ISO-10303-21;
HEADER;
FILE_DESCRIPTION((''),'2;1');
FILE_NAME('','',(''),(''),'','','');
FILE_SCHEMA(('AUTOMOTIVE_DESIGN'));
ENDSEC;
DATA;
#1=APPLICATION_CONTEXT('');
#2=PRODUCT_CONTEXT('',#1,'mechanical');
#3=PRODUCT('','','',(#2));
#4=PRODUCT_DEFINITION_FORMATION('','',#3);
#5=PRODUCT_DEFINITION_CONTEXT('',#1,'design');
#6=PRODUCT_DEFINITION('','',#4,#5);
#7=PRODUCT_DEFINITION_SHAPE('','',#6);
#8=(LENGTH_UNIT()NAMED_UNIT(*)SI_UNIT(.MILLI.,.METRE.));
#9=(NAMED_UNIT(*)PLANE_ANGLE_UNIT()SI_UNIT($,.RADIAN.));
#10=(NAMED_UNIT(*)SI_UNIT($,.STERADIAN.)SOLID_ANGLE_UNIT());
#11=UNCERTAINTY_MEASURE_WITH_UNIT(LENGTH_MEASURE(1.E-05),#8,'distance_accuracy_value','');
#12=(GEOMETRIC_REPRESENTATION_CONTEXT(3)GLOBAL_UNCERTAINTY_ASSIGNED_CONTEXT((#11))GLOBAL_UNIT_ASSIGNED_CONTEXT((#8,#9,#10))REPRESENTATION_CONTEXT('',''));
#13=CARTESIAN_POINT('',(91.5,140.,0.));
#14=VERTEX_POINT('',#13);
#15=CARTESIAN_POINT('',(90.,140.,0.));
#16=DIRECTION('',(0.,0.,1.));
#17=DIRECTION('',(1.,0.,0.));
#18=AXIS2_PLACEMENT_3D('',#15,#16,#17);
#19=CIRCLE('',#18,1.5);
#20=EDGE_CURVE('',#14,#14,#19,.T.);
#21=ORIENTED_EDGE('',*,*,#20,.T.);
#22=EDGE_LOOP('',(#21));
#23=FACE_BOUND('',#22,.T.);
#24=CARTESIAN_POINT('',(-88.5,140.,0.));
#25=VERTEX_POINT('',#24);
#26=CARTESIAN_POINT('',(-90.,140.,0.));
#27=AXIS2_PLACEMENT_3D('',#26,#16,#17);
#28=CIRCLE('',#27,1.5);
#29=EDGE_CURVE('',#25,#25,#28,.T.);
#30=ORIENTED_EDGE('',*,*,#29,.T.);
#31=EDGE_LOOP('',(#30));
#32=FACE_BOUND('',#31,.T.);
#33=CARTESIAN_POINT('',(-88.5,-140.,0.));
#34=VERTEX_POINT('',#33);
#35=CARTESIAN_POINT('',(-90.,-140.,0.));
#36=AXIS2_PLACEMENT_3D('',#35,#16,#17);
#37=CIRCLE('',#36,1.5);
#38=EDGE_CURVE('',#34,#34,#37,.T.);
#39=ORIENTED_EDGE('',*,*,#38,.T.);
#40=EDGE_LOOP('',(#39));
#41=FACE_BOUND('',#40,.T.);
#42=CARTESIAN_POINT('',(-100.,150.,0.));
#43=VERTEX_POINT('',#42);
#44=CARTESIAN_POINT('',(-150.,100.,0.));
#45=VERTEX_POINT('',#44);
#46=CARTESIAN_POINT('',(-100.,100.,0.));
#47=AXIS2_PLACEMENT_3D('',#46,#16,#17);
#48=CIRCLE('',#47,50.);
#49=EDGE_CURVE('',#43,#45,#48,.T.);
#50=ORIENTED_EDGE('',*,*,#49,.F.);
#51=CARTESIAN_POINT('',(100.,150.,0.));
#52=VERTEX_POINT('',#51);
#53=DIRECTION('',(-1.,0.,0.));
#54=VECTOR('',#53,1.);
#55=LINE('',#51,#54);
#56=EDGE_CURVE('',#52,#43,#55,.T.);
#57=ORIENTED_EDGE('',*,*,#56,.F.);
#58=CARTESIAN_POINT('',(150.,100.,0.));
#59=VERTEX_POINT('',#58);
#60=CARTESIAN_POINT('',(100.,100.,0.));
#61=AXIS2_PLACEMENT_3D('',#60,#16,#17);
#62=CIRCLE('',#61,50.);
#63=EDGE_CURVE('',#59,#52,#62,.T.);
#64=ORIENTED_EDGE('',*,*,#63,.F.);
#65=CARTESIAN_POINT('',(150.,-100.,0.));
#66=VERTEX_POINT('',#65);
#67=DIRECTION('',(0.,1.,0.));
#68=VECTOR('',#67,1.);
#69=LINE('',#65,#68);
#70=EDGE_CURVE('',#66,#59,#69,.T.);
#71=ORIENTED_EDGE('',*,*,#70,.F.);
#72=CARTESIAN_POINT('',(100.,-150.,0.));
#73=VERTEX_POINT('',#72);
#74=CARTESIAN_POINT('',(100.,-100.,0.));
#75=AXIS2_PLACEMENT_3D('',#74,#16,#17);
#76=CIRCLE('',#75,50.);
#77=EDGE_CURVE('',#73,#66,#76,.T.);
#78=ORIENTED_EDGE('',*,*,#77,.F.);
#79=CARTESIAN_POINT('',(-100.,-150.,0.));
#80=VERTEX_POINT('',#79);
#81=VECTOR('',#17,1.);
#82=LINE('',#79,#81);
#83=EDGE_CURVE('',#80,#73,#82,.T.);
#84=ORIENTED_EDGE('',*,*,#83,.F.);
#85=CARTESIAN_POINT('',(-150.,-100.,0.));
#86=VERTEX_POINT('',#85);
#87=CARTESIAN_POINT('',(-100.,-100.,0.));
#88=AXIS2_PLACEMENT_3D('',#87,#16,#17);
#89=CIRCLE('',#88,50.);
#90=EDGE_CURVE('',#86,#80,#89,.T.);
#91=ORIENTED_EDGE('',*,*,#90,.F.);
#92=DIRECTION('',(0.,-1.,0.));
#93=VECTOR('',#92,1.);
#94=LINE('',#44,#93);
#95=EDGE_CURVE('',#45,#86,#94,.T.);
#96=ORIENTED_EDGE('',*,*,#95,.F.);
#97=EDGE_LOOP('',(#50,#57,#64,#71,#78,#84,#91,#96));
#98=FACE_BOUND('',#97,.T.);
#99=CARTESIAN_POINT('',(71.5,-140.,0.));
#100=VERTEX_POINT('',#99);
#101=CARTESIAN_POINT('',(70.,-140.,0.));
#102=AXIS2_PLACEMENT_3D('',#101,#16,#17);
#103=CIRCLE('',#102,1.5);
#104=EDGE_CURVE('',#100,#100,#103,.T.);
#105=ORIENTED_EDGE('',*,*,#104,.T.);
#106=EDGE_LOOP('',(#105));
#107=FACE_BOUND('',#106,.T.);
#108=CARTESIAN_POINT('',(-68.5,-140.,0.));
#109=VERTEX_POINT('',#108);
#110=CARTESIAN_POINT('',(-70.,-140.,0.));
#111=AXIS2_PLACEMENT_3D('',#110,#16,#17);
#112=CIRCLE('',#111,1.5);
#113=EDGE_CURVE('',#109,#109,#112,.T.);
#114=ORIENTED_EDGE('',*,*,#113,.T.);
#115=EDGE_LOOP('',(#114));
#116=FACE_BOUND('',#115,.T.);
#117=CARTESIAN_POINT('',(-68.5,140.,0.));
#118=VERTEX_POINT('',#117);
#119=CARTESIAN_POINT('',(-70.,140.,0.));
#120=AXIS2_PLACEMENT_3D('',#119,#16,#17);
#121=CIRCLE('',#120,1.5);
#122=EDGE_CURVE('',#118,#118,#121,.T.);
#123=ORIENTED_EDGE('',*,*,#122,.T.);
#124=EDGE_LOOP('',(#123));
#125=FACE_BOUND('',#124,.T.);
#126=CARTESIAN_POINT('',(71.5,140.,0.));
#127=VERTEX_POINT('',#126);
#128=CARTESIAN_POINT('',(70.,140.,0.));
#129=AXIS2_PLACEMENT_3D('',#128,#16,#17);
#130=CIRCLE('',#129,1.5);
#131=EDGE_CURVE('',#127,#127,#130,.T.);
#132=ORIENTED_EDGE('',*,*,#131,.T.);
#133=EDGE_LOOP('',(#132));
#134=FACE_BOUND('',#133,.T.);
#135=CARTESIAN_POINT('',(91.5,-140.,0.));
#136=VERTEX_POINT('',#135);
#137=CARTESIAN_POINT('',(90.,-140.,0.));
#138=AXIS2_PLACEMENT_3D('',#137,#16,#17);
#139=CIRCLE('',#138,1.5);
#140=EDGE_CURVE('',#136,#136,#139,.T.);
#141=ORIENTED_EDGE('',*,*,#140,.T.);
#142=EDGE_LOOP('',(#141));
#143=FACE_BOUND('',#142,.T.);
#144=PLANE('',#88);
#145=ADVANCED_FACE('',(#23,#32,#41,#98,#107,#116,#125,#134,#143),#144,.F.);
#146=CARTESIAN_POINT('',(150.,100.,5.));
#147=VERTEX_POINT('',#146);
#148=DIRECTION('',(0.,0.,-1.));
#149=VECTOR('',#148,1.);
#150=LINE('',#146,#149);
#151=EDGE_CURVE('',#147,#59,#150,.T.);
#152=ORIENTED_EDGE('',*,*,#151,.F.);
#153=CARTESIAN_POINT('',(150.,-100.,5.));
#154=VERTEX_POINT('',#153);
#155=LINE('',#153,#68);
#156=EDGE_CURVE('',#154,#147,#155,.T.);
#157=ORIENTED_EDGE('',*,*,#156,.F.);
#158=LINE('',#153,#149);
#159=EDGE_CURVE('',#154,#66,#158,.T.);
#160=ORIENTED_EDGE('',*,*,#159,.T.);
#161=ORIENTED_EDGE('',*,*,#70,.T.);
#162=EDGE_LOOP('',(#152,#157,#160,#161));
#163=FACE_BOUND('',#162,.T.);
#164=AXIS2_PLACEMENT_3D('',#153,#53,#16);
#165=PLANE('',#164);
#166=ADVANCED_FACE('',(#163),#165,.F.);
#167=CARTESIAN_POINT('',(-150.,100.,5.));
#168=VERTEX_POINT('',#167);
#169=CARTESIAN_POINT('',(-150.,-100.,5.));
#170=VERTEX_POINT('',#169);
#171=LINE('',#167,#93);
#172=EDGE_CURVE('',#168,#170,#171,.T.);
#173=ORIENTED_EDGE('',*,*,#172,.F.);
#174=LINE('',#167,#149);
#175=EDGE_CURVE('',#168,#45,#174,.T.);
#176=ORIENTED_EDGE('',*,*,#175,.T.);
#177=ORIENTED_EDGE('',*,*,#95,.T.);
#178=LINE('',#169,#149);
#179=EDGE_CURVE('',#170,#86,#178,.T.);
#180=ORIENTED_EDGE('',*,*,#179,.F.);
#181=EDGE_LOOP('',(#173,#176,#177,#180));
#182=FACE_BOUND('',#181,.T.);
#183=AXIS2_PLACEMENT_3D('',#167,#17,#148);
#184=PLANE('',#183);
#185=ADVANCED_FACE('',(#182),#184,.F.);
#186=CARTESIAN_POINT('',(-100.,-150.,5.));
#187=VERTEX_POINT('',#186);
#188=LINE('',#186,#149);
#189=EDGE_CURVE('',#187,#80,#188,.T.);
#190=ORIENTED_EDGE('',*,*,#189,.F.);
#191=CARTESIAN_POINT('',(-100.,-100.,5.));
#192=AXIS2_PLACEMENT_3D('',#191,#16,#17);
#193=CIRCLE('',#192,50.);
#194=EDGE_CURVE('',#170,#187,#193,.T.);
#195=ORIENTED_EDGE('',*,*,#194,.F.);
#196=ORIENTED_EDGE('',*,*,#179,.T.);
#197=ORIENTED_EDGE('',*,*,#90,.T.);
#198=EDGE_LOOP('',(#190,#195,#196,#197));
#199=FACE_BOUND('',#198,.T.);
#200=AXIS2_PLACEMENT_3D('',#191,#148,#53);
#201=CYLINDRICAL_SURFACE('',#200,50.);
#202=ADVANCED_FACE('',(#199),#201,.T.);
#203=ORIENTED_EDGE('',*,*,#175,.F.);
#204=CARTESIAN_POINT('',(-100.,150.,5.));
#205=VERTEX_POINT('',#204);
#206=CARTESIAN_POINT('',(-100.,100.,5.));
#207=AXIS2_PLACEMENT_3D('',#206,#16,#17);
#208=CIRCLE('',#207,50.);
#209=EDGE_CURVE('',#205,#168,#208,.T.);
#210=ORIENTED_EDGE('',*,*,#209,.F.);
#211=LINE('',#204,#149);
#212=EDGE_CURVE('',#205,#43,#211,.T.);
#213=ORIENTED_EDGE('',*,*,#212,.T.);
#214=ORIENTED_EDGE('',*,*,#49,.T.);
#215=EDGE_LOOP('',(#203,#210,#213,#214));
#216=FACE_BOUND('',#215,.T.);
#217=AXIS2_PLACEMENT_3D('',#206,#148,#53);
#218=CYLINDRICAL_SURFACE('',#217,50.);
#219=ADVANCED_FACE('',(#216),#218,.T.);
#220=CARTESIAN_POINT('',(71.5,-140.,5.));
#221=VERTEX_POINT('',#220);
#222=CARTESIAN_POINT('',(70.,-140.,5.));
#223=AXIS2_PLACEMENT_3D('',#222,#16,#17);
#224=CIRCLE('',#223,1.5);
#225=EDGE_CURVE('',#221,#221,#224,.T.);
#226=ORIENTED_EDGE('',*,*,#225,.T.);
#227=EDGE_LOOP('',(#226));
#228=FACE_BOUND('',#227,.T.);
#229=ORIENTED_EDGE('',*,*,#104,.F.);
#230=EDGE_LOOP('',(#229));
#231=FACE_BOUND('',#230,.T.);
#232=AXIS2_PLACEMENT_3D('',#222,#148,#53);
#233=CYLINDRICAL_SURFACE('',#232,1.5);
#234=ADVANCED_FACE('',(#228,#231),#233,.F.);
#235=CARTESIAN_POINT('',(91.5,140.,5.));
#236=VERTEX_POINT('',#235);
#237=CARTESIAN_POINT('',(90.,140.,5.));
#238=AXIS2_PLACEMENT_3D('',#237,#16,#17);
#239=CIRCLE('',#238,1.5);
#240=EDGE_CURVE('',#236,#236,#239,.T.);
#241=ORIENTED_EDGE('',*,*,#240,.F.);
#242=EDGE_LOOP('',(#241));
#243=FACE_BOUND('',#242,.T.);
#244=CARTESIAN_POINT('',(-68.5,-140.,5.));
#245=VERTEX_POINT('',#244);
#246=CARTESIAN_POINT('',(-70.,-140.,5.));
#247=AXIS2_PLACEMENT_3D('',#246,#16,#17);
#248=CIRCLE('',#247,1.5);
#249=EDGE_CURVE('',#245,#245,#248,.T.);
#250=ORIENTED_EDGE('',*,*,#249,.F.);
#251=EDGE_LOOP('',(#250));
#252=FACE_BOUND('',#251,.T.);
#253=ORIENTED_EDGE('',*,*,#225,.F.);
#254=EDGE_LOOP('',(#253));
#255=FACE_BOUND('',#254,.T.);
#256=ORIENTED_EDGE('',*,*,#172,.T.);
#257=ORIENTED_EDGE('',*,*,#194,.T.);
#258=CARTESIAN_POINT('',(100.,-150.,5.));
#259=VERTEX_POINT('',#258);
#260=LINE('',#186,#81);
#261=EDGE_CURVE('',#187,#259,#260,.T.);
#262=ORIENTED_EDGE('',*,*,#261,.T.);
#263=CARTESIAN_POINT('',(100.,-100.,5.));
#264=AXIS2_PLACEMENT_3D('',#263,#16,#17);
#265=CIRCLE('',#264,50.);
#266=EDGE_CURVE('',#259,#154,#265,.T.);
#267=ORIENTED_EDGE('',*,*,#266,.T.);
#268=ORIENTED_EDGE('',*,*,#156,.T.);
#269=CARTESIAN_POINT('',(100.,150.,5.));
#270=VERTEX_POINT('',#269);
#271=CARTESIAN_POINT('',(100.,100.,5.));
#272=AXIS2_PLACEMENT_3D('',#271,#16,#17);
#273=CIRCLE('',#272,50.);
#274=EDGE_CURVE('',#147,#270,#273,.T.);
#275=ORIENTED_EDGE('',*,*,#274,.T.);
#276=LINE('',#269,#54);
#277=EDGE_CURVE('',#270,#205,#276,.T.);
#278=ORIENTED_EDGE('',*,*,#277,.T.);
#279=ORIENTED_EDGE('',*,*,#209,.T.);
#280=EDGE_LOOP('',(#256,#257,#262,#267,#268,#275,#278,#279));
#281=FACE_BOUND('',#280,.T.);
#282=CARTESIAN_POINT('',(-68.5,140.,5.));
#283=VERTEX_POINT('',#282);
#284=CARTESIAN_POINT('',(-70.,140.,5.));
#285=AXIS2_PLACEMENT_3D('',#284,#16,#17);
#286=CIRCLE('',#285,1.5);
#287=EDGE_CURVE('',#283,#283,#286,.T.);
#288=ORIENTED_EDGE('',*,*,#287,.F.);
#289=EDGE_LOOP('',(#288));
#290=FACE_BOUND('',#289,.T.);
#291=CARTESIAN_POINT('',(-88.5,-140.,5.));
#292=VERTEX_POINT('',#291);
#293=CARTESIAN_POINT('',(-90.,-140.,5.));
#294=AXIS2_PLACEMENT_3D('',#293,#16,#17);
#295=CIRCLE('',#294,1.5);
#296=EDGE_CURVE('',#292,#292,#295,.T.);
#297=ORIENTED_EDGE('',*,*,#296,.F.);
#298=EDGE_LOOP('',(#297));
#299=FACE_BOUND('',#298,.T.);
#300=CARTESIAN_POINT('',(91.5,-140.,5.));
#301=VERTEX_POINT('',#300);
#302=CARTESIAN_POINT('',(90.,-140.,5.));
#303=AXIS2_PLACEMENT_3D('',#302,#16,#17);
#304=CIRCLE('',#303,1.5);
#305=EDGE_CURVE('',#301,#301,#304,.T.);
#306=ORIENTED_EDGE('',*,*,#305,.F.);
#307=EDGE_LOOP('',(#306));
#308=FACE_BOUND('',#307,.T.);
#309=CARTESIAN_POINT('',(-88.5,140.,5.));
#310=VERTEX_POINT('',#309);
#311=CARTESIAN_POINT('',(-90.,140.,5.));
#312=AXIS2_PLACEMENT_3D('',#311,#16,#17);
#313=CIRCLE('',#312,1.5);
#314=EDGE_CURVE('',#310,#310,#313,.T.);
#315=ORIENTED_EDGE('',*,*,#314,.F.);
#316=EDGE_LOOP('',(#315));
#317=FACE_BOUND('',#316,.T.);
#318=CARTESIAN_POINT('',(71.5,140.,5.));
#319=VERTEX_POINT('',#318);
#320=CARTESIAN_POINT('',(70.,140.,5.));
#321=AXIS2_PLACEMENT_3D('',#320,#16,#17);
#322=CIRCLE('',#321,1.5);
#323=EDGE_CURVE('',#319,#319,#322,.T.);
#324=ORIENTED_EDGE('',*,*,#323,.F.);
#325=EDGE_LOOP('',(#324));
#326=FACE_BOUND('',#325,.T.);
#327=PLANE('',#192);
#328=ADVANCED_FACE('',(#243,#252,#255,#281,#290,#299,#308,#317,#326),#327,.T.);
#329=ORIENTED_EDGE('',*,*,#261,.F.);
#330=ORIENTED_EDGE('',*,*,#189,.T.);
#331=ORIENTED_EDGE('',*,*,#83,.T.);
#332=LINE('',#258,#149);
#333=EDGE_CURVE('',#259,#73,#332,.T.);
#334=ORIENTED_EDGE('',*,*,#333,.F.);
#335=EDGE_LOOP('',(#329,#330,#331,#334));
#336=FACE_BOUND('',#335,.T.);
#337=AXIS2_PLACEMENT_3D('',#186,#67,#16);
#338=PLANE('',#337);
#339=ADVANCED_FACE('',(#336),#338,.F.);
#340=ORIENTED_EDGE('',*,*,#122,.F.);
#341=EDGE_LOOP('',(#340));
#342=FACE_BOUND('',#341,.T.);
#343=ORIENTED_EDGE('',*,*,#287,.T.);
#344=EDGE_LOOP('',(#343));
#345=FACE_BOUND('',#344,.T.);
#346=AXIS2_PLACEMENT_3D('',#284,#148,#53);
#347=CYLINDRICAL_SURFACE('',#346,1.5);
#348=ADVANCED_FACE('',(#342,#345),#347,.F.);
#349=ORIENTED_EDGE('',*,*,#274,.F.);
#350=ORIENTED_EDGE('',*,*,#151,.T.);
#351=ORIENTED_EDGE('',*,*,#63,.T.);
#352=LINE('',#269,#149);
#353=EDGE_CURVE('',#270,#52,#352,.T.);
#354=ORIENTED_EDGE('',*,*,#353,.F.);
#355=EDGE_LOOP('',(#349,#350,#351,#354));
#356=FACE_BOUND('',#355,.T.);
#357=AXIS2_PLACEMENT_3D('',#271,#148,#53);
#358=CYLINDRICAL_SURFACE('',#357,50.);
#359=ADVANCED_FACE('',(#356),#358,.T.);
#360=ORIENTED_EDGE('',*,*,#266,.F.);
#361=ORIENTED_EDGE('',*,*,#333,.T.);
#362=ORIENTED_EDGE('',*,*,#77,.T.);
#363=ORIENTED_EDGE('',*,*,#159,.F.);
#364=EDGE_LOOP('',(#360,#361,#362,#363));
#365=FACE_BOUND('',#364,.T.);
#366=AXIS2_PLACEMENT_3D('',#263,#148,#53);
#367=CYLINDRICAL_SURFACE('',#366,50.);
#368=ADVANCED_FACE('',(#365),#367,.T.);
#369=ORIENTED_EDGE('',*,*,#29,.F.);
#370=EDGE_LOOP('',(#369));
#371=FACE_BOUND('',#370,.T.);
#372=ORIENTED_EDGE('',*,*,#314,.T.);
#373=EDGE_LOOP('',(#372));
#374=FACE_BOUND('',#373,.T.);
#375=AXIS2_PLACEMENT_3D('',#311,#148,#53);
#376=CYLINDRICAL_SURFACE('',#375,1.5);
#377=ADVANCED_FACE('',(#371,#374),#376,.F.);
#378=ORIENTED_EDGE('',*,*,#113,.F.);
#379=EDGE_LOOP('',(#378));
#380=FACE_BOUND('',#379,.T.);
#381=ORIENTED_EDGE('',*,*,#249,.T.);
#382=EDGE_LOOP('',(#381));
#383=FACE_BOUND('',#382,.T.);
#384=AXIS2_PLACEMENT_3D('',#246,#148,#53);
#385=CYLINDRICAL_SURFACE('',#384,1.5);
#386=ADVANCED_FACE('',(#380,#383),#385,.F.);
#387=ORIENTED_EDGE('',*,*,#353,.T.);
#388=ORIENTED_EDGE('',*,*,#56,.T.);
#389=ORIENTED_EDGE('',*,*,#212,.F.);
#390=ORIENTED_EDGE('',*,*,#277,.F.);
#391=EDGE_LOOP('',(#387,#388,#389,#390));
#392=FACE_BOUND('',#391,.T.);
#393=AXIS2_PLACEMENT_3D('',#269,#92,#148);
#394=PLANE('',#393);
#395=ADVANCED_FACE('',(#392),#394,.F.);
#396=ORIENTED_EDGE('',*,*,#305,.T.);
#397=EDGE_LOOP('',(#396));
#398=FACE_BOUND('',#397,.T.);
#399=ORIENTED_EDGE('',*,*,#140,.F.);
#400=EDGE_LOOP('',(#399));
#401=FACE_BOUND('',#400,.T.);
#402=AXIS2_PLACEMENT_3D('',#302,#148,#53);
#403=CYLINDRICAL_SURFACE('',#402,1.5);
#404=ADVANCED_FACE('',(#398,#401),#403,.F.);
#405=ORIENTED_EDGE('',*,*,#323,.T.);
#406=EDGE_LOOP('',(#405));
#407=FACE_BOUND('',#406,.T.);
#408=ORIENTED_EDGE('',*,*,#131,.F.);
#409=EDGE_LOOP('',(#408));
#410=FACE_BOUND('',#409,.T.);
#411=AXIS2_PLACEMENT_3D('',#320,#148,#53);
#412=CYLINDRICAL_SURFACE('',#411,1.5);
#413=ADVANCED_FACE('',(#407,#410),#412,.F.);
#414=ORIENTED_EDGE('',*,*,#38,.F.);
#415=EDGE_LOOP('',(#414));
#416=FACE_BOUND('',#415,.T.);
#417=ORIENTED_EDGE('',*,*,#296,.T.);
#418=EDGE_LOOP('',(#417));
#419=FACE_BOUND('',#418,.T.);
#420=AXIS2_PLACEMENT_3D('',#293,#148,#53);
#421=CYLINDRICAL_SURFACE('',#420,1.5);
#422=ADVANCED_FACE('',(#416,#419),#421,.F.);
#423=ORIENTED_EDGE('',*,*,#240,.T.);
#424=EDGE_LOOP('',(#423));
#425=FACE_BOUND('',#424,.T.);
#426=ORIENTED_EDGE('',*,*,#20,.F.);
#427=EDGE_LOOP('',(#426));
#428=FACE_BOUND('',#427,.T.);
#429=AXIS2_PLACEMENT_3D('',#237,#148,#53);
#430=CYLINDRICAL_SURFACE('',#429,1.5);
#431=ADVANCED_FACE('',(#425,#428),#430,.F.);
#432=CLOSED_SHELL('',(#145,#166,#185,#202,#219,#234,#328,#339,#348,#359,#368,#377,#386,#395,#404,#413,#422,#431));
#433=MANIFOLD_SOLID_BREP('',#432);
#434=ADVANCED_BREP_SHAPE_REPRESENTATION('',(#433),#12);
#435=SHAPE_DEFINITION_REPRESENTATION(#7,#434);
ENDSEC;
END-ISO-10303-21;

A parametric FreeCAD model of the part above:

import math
import FreeCAD as App
import Part
import Sketcher

V = App.Vector

doc = App.newDocument("Part")
params = doc.addObject("Spreadsheet::Sheet", "Params")
for row, (alias, value) in enumerate([
    ("sketch1_diameter", "3 mm"),
    ("sketch1_radius", "50 mm"),
    ("sketch1_width", "200 mm"),
    ("pad1_length", "5 mm"),
], start=1):
    params.set(f"A{row}", alias)
    params.set(f"B{row}", "=" + value)
    params.setAlias(f"B{row}", alias)

body = doc.addObject("PartDesign::Body", "Body")

sketch1 = doc.addObject("Sketcher::SketchObject", "Sketch")
body.addObject(sketch1)
sketch1.AttachmentSupport = (doc.XY_Plane, [""])
sketch1.MapMode = "FlatFace"
sketch1.addGeometry(Part.LineSegment(V(-100, -150, 0), V(100, -150, 0)), False)
sketch1.addGeometry(Part.ArcOfCircle(Part.Circle(V(100, -100, 0), V(0, 0, 1), 50), math.radians(-90), math.radians(0)), False)
sketch1.addGeometry(Part.LineSegment(V(150, -100, 0), V(150, 100, 0)), False)
sketch1.addGeometry(Part.ArcOfCircle(Part.Circle(V(100, 100, 0), V(0, 0, 1), 50), math.radians(0), math.radians(90)), False)
sketch1.addGeometry(Part.LineSegment(V(100, 150, 0), V(-100, 150, 0)), False)
sketch1.addGeometry(Part.ArcOfCircle(Part.Circle(V(-100, 100, 0), V(0, 0, 1), 50), math.radians(90), math.radians(180)), False)
sketch1.addGeometry(Part.LineSegment(V(-150, 100, 0), V(-150, -100, 0)), False)
sketch1.addGeometry(Part.ArcOfCircle(Part.Circle(V(-100, -100, 0), V(0, 0, 1), 50), math.radians(-180), math.radians(-90)), False)
sketch1.addGeometry(Part.Circle(V(-90, -140, 0), V(0, 0, 1), 1.5), False)
sketch1.addGeometry(Part.Circle(V(-70, -140, 0), V(0, 0, 1), 1.5), False)
sketch1.addGeometry(Part.Circle(V(70, -140, 0), V(0, 0, 1), 1.5), False)
sketch1.addGeometry(Part.Circle(V(90, -140, 0), V(0, 0, 1), 1.5), False)
sketch1.addGeometry(Part.Circle(V(-90, 140, 0), V(0, 0, 1), 1.5), False)
sketch1.addGeometry(Part.Circle(V(-70, 140, 0), V(0, 0, 1), 1.5), False)
sketch1.addGeometry(Part.Circle(V(70, 140, 0), V(0, 0, 1), 1.5), False)
sketch1.addGeometry(Part.Circle(V(90, 140, 0), V(0, 0, 1), 1.5), False)
sketch1.addConstraint(Sketcher.Constraint("Tangent", 0, 2, 1, 1))
sketch1.addConstraint(Sketcher.Constraint("Tangent", 1, 2, 2, 1))
sketch1.addConstraint(Sketcher.Constraint("Tangent", 2, 2, 3, 1))
sketch1.addConstraint(Sketcher.Constraint("Tangent", 3, 2, 4, 1))
sketch1.addConstraint(Sketcher.Constraint("Tangent", 4, 2, 5, 1))
sketch1.addConstraint(Sketcher.Constraint("Tangent", 5, 2, 6, 1))
sketch1.addConstraint(Sketcher.Constraint("Tangent", 6, 2, 7, 1))
sketch1.addConstraint(Sketcher.Constraint("Tangent", 7, 2, 0, 1))
sketch1.addConstraint(Sketcher.Constraint("Horizontal", 0))
sketch1.addConstraint(Sketcher.Constraint("Vertical", 2))
sketch1.addConstraint(Sketcher.Constraint("Horizontal", 4))
sketch1.addConstraint(Sketcher.Constraint("Vertical", 6))
sketch1.addConstraint(Sketcher.Constraint("Equal", 1, 3))
sketch1.addConstraint(Sketcher.Constraint("Equal", 3, 5))
sketch1.addConstraint(Sketcher.Constraint("Equal", 5, 7))
sketch1.addConstraint(Sketcher.Constraint("Equal", 8, 9))
sketch1.addConstraint(Sketcher.Constraint("Equal", 9, 10))
sketch1.addConstraint(Sketcher.Constraint("Equal", 10, 11))
sketch1.addConstraint(Sketcher.Constraint("Equal", 11, 12))
sketch1.addConstraint(Sketcher.Constraint("Equal", 12, 13))
sketch1.addConstraint(Sketcher.Constraint("Equal", 13, 14))
sketch1.addConstraint(Sketcher.Constraint("Equal", 14, 15))
sketch1.addConstraint(Sketcher.Constraint("Symmetric", 1, 3, 5, 3, -1, 1))
sketch1.addConstraint(Sketcher.Constraint("Symmetric", 11, 3, 12, 3, -1, 1))
sketch1.addConstraint(Sketcher.Constraint("Symmetric", 10, 3, 13, 3, -1, 1))
sketch1.addConstraint(Sketcher.Constraint("Symmetric", 9, 3, 14, 3, -1, 1))
sketch1.addConstraint(Sketcher.Constraint("Symmetric", 8, 3, 15, 3, -1, 1))
sketch1.addConstraint(Sketcher.Constraint("Symmetric", 9, 3, 10, 3, -2))
sketch1.addConstraint(Sketcher.Constraint("Symmetric", 8, 3, 11, 3, -2))
sketch1.addConstraint(Sketcher.Constraint("Horizontal", 8, 3, 9, 3))
sketch1.addConstraint(Sketcher.Constraint("Equal", 4, 2))
sketch1.addConstraint(Sketcher.Constraint("Diameter", 8, 3.0))
sketch1.addConstraint(Sketcher.Constraint("Radius", 1, 50.0))
sketch1.addConstraint(Sketcher.Constraint("DistanceX", 0, 1, 0, 2, 200.0))
sketch1.addConstraint(Sketcher.Constraint("DistanceX", 8, 3, -1, 1, 90.0))
sketch1.addConstraint(Sketcher.Constraint("DistanceY", 8, 3, -1, 1, 140.0))
sketch1.addConstraint(Sketcher.Constraint("DistanceX", 9, 3, -1, 1, 70.0))
sketch1.setExpression("Constraints[31]", "Params.sketch1_diameter")
sketch1.setExpression("Constraints[32]", "Params.sketch1_radius")
sketch1.setExpression("Constraints[33]", "Params.sketch1_width")
pad1 = doc.addObject("PartDesign::Pad", "Pad")
body.addObject(pad1)
pad1.Profile = sketch1
pad1.setExpression("Length", "Params.pad1_length")

doc.recompute()
